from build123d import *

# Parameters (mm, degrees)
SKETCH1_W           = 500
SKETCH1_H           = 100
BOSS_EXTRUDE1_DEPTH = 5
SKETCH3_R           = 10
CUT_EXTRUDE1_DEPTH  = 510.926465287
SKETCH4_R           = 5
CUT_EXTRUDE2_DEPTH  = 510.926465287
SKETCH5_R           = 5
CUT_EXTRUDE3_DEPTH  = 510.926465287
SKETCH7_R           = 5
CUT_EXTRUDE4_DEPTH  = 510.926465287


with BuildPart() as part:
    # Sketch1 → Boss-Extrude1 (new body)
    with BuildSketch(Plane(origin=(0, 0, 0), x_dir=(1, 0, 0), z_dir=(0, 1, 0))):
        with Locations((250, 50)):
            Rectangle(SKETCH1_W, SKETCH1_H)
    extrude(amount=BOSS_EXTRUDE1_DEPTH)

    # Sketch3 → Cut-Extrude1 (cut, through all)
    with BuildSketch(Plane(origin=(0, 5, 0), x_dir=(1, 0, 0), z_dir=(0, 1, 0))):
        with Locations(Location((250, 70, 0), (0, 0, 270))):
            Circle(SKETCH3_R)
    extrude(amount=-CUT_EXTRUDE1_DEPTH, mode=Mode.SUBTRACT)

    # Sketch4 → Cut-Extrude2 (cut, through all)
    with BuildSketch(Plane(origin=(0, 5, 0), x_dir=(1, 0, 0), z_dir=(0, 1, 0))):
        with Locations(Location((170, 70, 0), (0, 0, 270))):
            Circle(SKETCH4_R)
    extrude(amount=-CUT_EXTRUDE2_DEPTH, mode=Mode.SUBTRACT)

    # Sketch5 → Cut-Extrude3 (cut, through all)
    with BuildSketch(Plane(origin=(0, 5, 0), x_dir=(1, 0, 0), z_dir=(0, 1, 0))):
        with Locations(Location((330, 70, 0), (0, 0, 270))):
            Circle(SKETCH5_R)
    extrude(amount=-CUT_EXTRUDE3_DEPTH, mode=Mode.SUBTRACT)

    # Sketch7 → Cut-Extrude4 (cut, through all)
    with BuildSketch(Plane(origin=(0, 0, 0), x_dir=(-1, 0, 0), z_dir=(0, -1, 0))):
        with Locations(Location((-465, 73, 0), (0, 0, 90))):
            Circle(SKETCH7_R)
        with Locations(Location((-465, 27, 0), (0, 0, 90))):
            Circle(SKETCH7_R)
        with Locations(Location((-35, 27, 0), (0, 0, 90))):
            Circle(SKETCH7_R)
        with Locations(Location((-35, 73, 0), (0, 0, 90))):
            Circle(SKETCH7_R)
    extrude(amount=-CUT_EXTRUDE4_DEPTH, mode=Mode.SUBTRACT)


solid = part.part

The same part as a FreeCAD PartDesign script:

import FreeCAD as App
import Part
import Sketcher


def add_polygon(sketch, points):
    """Adds a closed chain of lines whose ends are joined by coincident constraints."""
    first, n = sketch.GeometryCount, len(points)
    for a, b in zip(points, points[1:] + points[:1]):
        sketch.addGeometry(Part.LineSegment(App.Vector(*a, 0), App.Vector(*b, 0)), False)
    for i in range(n):
        sketch.addConstraint(Sketcher.Constraint("Coincident", first + i, 2, first + (i + 1) % n, 1))

doc = App.newDocument("Part")
body = doc.addObject("PartDesign::Body", "Body")

# Sketch on XZ plane
sketch1 = doc.addObject("Sketcher::SketchObject", "Sketch")
body.addObject(sketch1)
sketch1.AttachmentSupport = (doc.XZ_Plane, [""])
sketch1.MapMode = "FlatFace"
add_polygon(sketch1, [(0, -100), (0, 0), (500, 0), (500, -100)])  # lines 0-3
sketch1.addConstraint(Sketcher.Constraint("Vertical", 0))
sketch1.addConstraint(Sketcher.Constraint("Horizontal", 1))
sketch1.addConstraint(Sketcher.Constraint("Vertical", 2))
sketch1.addConstraint(Sketcher.Constraint("Horizontal", 3))
sketch1.addConstraint(Sketcher.Constraint("Coincident", 0, 2, -1, 1))
sketch1.addConstraint(Sketcher.Constraint("DistanceX", 1, 1, 1, 2, 500.0))
sketch1.addConstraint(Sketcher.Constraint("DistanceY", 0, 1, 0, 2, 100.0))
pad1 = doc.addObject("PartDesign::Pad", "Pad")
body.addObject(pad1)
pad1.Profile = sketch1
pad1.Length = 5
pad1.Reversed = True

# Sketch on XZ plane
sketch2 = doc.addObject("Sketcher::SketchObject", "Sketch001")
body.addObject(sketch2)
sketch2.AttachmentSupport = (doc.XZ_Plane, [""])
sketch2.MapMode = "FlatFace"
sketch2.AttachmentOffset = App.Placement(App.Vector(0, 0, -5), App.Rotation())
sketch2.addGeometry(Part.Circle(App.Vector(250, -70, 0), App.Vector(0, 0, 1), 10), False)
sketch2.addConstraint(Sketcher.Constraint("Diameter", 0, 20.0))
sketch2.addConstraint(Sketcher.Constraint("DistanceX", -1, 1, 0, 3, 250.0))
sketch2.addConstraint(Sketcher.Constraint("DistanceY", 0, 3, -1, 1, 70.0))
pocket1 = doc.addObject("PartDesign::Pocket", "Pocket")
body.addObject(pocket1)
pocket1.Profile = sketch2
pocket1.Type = "ThroughAll"
pocket1.Reversed = True

# Sketch on XZ plane
sketch3 = doc.addObject("Sketcher::SketchObject", "Sketch002")
body.addObject(sketch3)
sketch3.AttachmentSupport = (doc.XZ_Plane, [""])
sketch3.MapMode = "FlatFace"
sketch3.AttachmentOffset = App.Placement(App.Vector(0, 0, -5), App.Rotation())
sketch3.addGeometry(Part.Circle(App.Vector(170, -70, 0), App.Vector(0, 0, 1), 5), False)
sketch3.addConstraint(Sketcher.Constraint("Diameter", 0, 10.0))
sketch3.addConstraint(Sketcher.Constraint("DistanceX", -1, 1, 0, 3, 170.0))
sketch3.addConstraint(Sketcher.Constraint("DistanceY", 0, 3, -1, 1, 70.0))
pocket2 = doc.addObject("PartDesign::Pocket", "Pocket001")
body.addObject(pocket2)
pocket2.Profile = sketch3
pocket2.Type = "ThroughAll"
pocket2.Reversed = True

# Sketch on XZ plane
sketch4 = doc.addObject("Sketcher::SketchObject", "Sketch003")
body.addObject(sketch4)
sketch4.AttachmentSupport = (doc.XZ_Plane, [""])
sketch4.MapMode = "FlatFace"
sketch4.AttachmentOffset = App.Placement(App.Vector(0, 0, -5), App.Rotation())
sketch4.addGeometry(Part.Circle(App.Vector(330, -70, 0), App.Vector(0, 0, 1), 5), False)
sketch4.addConstraint(Sketcher.Constraint("Diameter", 0, 10.0))
sketch4.addConstraint(Sketcher.Constraint("DistanceX", -1, 1, 0, 3, 330.0))
sketch4.addConstraint(Sketcher.Constraint("DistanceY", 0, 3, -1, 1, 70.0))
pocket3 = doc.addObject("PartDesign::Pocket", "Pocket002")
body.addObject(pocket3)
pocket3.Profile = sketch4
pocket3.Type = "ThroughAll"
pocket3.Reversed = True

# Sketch on XZ plane
sketch5 = doc.addObject("Sketcher::SketchObject", "Sketch004")
body.addObject(sketch5)
sketch5.AttachmentSupport = (doc.XZ_Plane, [""])
sketch5.MapMode = "FlatFace"
sketch5.addGeometry(Part.Circle(App.Vector(465, -73, 0), App.Vector(0, 0, 1), 5), False)
sketch5.addGeometry(Part.Circle(App.Vector(465, -27, 0), App.Vector(0, 0, 1), 5), False)
sketch5.addGeometry(Part.Circle(App.Vector(35, -27, 0), App.Vector(0, 0, 1), 5), False)
sketch5.addGeometry(Part.Circle(App.Vector(35, -73, 0), App.Vector(0, 0, 1), 5), False)
sketch5.addConstraint(Sketcher.Constraint("Equal", 0, 1))
sketch5.addConstraint(Sketcher.Constraint("Equal", 1, 2))
sketch5.addConstraint(Sketcher.Constraint("Equal", 2, 3))
sketch5.addConstraint(Sketcher.Constraint("Horizontal", 1, 3, 2, 3))
sketch5.addConstraint(Sketcher.Constraint("Horizontal", 0, 3, 3, 3))
sketch5.addConstraint(Sketcher.Constraint("Vertical", 0, 3, 1, 3))
sketch5.addConstraint(Sketcher.Constraint("Vertical", 2, 3, 3, 3))
sketch5.addConstraint(Sketcher.Constraint("Diameter", 0, 10.0))
sketch5.addConstraint(Sketcher.Constraint("DistanceX", -1, 1, 0, 3, 465.0))
sketch5.addConstraint(Sketcher.Constraint("DistanceY", 0, 3, -1, 1, 73.0))
sketch5.addConstraint(Sketcher.Constraint("DistanceY", 1, 3, -1, 1, 27.0))
sketch5.addConstraint(Sketcher.Constraint("DistanceX", -1, 1, 2, 3, 35.0))
pocket4 = doc.addObject("PartDesign::Pocket", "Pocket003")
body.addObject(pocket4)
pocket4.Profile = sketch5
pocket4.Type = "ThroughAll"

doc.recompute()
